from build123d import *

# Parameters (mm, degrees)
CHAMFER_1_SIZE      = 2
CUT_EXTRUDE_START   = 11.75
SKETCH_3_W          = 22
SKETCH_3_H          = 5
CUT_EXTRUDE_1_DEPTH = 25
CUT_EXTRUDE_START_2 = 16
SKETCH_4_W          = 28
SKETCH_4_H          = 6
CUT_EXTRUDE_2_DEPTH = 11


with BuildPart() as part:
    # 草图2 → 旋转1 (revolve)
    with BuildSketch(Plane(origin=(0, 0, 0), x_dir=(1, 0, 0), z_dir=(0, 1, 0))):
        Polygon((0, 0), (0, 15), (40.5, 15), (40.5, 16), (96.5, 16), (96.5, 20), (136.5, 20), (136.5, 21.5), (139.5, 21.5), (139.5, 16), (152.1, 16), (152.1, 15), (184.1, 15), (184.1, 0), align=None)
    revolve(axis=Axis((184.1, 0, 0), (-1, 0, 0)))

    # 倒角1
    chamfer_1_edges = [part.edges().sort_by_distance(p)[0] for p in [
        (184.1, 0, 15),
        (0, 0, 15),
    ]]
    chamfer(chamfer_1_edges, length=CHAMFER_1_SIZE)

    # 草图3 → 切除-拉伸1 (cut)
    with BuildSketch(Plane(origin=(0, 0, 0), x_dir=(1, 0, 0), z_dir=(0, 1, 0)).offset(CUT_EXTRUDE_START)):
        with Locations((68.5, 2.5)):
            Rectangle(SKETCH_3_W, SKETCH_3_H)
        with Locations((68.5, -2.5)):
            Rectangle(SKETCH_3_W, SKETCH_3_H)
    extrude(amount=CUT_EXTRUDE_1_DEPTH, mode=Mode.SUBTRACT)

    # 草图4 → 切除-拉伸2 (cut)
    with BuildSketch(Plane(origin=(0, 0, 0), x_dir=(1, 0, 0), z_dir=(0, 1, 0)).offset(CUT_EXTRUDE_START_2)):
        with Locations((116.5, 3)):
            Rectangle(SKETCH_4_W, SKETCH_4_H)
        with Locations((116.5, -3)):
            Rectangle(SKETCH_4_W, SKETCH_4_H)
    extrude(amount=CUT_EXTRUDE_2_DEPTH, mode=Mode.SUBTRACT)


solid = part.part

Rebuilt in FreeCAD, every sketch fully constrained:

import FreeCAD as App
import Part
import Sketcher

V = App.Vector


def edges_at(feature, points):
    """Names of the edges that pass closest to the given points."""
    edges = feature.Shape.Edges
    near = lambda p: min(range(len(edges)), key=lambda i: edges[i].distToShape(Part.Vertex(*p))[0])
    return sorted({f"Edge{near(p) + 1}" for p in points})


def add_polygon(sketch, points):
    """Adds a closed chain of lines whose ends are joined by coincident constraints."""
    first, n = sketch.GeometryCount, len(points)
    for a, b in zip(points, points[1:] + points[:1]):
        sketch.addGeometry(Part.LineSegment(App.Vector(*a, 0), App.Vector(*b, 0)), False)
    for i in range(n):
        sketch.addConstraint(Sketcher.Constraint("Coincident", first + i, 2, first + (i + 1) % n, 1))

doc = App.newDocument("Part")
body = doc.addObject("PartDesign::Body", "Body")

# Sketch on XZ plane
sketch1 = body.newObject("Sketcher::SketchObject", "Sketch")
sketch1.AttachmentSupport = (doc.getObject("XZ_Plane"), [""])
sketch1.MapMode = "FlatFace"
add_polygon(sketch1, [(0, -15), (0, 0), (184.1, 0), (184.1, -15), (152.1, -15), (152.1, -16), (139.5, -16), (139.5, -21.5), (136.5, -21.5), (136.5, -20), (96.5, -20), (96.5, -16), (40.5, -16), (40.5, -15)])  # lines 0-13
sketch1.addConstraint([
    Sketcher.Constraint("Vertical", 0),
    Sketcher.Constraint("Horizontal", 1),
    Sketcher.Constraint("Vertical", 2),
    Sketcher.Constraint("Horizontal", 3),
    Sketcher.Constraint("Vertical", 4),
    Sketcher.Constraint("Horizontal", 5),
    Sketcher.Constraint("Vertical", 6),
    Sketcher.Constraint("Horizontal", 7),
    Sketcher.Constraint("Vertical", 8),
    Sketcher.Constraint("Horizontal", 9),
    Sketcher.Constraint("Vertical", 10),
    Sketcher.Constraint("Horizontal", 11),
    Sketcher.Constraint("Vertical", 12),
    Sketcher.Constraint("Horizontal", 13),
    Sketcher.Constraint("Coincident", 0, 2, -1, 1),
    Sketcher.Constraint("Horizontal", 5, 2, 10, 2),
    Sketcher.Constraint("Horizontal", 3, 2, 12, 2),
    Sketcher.Constraint("DistanceX", 3, 2, 3, 1, 32.0),
    Sketcher.Constraint("DistanceX", 7, 2, 7, 1, 3.0),
    Sketcher.Constraint("DistanceX", 9, 2, 9, 1, 40.0),
    Sketcher.Constraint("DistanceX", 11, 2, 11, 1, 56.0),
    Sketcher.Constraint("DistanceY", 0, 1, 0, 2, 15.0),
    Sketcher.Constraint("DistanceY", 4, 2, 4, 1, 1.0),
    Sketcher.Constraint("DistanceY", 10, 1, 10, 2, 4.0),
    Sketcher.Constraint("DistanceX", 1, 1, 1, 2, 184.1),
    Sketcher.Constraint("DistanceX", 5, 2, 5, 1, 12.6),
    Sketcher.Constraint("DistanceY", 6, 2, 6, 1, 5.5),
])
revolution = body.newObject("PartDesign::Revolution", "Revolution")
revolution.Profile = sketch1
revolution.ReferenceAxis = (sketch1, ["H_Axis"])
revolution.Angle = 360
doc.recompute()

chamfer = body.newObject("PartDesign::Chamfer", "Chamfer")
chamfer.Base = (revolution, edges_at(revolution, [(184.1, 0, 15), (0, 0, 15)]))
chamfer.Size = 2

# Sketch on XZ plane
sketch2 = body.newObject("Sketcher::SketchObject", "Sketch001")
sketch2.AttachmentSupport = (doc.getObject("XZ_Plane"), [""])
sketch2.MapMode = "FlatFace"
sketch2.AttachmentOffset = App.Placement(V(0, 0, -11.75), App.Rotation())
add_polygon(sketch2, [(58, -5), (58, 5), (80, 5), (80, -5)])  # lines 0-3
sketch2.addConstraint([
    Sketcher.Constraint("Vertical", 0),
    Sketcher.Constraint("Horizontal", 1),
    Sketcher.Constraint("Vertical", 2),
    Sketcher.Constraint("Horizontal", 3),
    Sketcher.Constraint("DistanceX", 1, 1, 1, 2, 22.0),
    Sketcher.Constraint("DistanceY", 0, 1, 0, 2, 10.0),
    Sketcher.Constraint("DistanceY", -1, 1, 0, 2, 5.0),
    Sketcher.Constraint("DistanceX", -1, 1, 0, 2, 57.5),
])
pocket1 = body.newObject("PartDesign::Pocket", "Pocket")
pocket1.Profile = sketch2
pocket1.Length = 25

# Sketch on XZ plane
sketch3 = body.newObject("Sketcher::SketchObject", "Sketch002")
sketch3.AttachmentSupport = (doc.getObject("XZ_Plane"), [""])
sketch3.MapMode = "FlatFace"
sketch3.AttachmentOffset = App.Placement(V(0, 0, -16), App.Rotation())
add_polygon(sketch3, [(102, -6), (102, 6), (130, 6), (130, -6)])  # lines 0-3
sketch3.addConstraint([
    Sketcher.Constraint("Vertical", 0),
    Sketcher.Constraint("Horizontal", 1),
    Sketcher.Constraint("Vertical", 2),
    Sketcher.Constraint("Horizontal", 3),
    Sketcher.Constraint("DistanceX", 1, 1, 1, 2, 28.0),
    Sketcher.Constraint("DistanceY", 0, 1, 0, 2, 12.0),
    Sketcher.Constraint("DistanceY", -1, 1, 0, 2, 6.0),
    Sketcher.Constraint("DistanceX", -1, 1, 0, 2, 102.5),
])
pocket2 = body.newObject("PartDesign::Pocket", "Pocket001")
pocket2.Profile = sketch3
pocket2.Length = 11

doc.recompute()
